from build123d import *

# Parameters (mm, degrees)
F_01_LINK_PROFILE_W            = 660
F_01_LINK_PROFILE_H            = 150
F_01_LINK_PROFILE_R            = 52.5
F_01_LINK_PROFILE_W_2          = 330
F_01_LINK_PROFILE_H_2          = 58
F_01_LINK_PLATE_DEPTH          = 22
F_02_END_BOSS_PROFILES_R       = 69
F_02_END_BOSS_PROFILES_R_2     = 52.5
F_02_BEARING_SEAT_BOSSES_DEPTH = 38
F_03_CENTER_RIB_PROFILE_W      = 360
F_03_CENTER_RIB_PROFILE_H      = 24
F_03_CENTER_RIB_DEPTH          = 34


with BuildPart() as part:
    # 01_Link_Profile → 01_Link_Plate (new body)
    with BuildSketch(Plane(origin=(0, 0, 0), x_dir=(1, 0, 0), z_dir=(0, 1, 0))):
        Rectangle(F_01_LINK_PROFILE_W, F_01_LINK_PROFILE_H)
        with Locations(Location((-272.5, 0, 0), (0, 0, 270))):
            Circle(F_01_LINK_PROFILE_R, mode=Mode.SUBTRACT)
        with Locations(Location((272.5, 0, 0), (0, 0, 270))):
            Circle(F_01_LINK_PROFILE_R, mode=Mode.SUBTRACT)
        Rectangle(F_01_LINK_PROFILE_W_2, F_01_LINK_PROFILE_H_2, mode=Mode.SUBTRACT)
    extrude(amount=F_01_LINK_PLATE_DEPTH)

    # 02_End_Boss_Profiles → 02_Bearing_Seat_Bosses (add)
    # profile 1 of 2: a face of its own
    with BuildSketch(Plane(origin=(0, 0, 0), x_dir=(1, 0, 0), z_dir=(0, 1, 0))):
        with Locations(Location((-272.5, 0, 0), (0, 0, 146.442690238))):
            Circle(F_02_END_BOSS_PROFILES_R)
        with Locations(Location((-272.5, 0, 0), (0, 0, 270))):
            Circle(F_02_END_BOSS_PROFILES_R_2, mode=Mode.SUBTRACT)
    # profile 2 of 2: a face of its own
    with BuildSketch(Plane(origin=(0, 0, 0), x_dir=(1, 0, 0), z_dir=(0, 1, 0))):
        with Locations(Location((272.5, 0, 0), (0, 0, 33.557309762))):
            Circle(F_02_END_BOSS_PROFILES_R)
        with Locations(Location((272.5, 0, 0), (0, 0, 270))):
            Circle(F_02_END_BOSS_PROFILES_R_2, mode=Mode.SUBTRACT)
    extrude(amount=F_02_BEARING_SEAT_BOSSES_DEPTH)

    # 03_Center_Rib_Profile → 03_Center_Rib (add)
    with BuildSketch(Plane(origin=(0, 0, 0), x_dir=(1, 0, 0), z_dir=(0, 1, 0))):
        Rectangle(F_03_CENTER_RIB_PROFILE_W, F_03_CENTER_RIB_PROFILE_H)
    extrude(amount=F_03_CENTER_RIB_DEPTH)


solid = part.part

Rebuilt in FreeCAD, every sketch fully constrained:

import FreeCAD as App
import Part
import Sketcher
from FreeCAD import Vector


def add_polygon(sketch, points):
    """Adds a closed chain of lines whose ends are joined by coincident constraints."""
    first, n = sketch.GeometryCount, len(points)
    for a, b in zip(points, points[1:] + points[:1]):
        sketch.addGeometry(Part.LineSegment(App.Vector(*a, 0), App.Vector(*b, 0)), False)
    for i in range(n):
        sketch.addConstraint(Sketcher.Constraint("Coincident", first + i, 2, first + (i + 1) % n, 1))

doc = App.newDocument("Part")
params = doc.addObject("Spreadsheet::Sheet", "Params")
for row, (alias, value) in enumerate([
    ("sketch1_diameter", "105 mm"),
    ("sketch1_width", "660 mm"),
    ("sketch1_width2", "330 mm"),
    ("sketch1_height", "150 mm"),
    ("sketch1_height2", "58 mm"),
    ("pad1_length", "22 mm"),
    ("sketch2_diameter", "138 mm"),
    ("sketch2_diameter2", "105 mm"),
    ("pad2_length", "38 mm"),
    ("sketch3_width", "360 mm"),
    ("sketch3_height", "24 mm"),
    ("pad3_length", "34 mm"),
], start=1):
    params.set(f"A{row}", alias)
    params.set(f"B{row}", "=" + value)
    params.setAlias(f"B{row}", alias)

body = doc.addObject("PartDesign::Body", "Body")

# Sketch on XZ plane
sketch1 = body.newObject("Sketcher::SketchObject", "Sketch")
sketch1.AttachmentSupport = (doc.getObject("XZ_Plane"), [""])
sketch1.MapMode = "FlatFace"
add_polygon(sketch1, [(-330, -75), (-330, 75), (330, 75), (330, -75)])  # lines 0-3
sketch1.addGeometry(Part.Circle(Vector(-272, 0, 0), Vector(0, 0, 1), 52), False)  # 4
add_polygon(sketch1, [(165, 29), (-165, 29), (-165, -29), (165, -29)])  # lines 5-8
sketch1.addGeometry(Part.Circle(Vector(272, 0, 0), Vector(0, 0, 1), 52), False)  # 9
sketch1.addConstraint([
    Sketcher.Constraint("Vertical", 0),
    Sketcher.Constraint("Horizontal", 1),
    Sketcher.Constraint("Vertical", 2),
    Sketcher.Constraint("Horizontal", 3),
    Sketcher.Constraint("Horizontal", 5),
    Sketcher.Constraint("Vertical", 6),
    Sketcher.Constraint("Horizontal", 7),
    Sketcher.Constraint("Vertical", 8),
    Sketcher.Constraint("Equal", 4, 9),
    Sketcher.Constraint("Symmetric", 4, 3, 9, 3, -1, 1),
    Sketcher.Constraint("Symmetric", 0, 2, 2, 2, -1, 1),
    Sketcher.Constraint("Symmetric", 5, 2, 7, 2, -1, 1),
    Sketcher.Constraint("PointOnObject", 4, 3, -1),
    Sketcher.Constraint("Diameter", 4, 105.0),
    Sketcher.Constraint("DistanceX", 1, 1, 1, 2, 660.0),
    Sketcher.Constraint("DistanceX", 5, 2, 5, 1, 330.0),
    Sketcher.Constraint("DistanceY", 0, 1, 0, 2, 150.0),
    Sketcher.Constraint("DistanceY", 6, 2, 6, 1, 58.0),
    Sketcher.Constraint("DistanceX", 4, 3, 9, 3, 545.0),
])
sketch1.setExpression("Constraints[21]", "Params.sketch1_diameter")
sketch1.setExpression("Constraints[22]", "Params.sketch1_width")
sketch1.setExpression("Constraints[23]", "Params.sketch1_width2")
sketch1.setExpression("Constraints[24]", "Params.sketch1_height")
sketch1.setExpression("Constraints[25]", "Params.sketch1_height2")
pad1 = body.newObject("PartDesign::Pad", "Pad")
pad1.Profile = sketch1
pad1.setExpression("Length", "Params.pad1_length")
pad1.Reversed = True

# Sketch on XZ plane
sketch2 = body.newObject("Sketcher::SketchObject", "Sketch001")
sketch2.AttachmentSupport = (doc.getObject("XZ_Plane"), [""])
sketch2.MapMode = "FlatFace"
sketch2.addGeometry([
    Part.Circle(Vector(-272, 0, 0), Vector(0, 0, 1), 69),
    Part.Circle(Vector(-272, 0, 0), Vector(0, 0, 1), 52),
    Part.Circle(Vector(272, 0, 0), Vector(0, 0, 1), 69),
    Part.Circle(Vector(272, 0, 0), Vector(0, 0, 1), 52),
], False)
sketch2.addConstraint([
    Sketcher.Constraint("Coincident", 1, 3, 0, 3),
    Sketcher.Constraint("Coincident", 3, 3, 2, 3),
    Sketcher.Constraint("Equal", 0, 2),
    Sketcher.Constraint("Equal", 1, 3),
    Sketcher.Constraint("Symmetric", 0, 3, 2, 3, -1, 1),
    Sketcher.Constraint("PointOnObject", 0, 3, -1),
    Sketcher.Constraint("Diameter", 0, 138.0),
    Sketcher.Constraint("Diameter", 1, 105.0),
    Sketcher.Constraint("DistanceX", 0, 3, 2, 3, 545.0),
])
sketch2.setExpression("Constraints[6]", "Params.sketch2_diameter")
sketch2.setExpression("Constraints[7]", "Params.sketch2_diameter2")
pad2 = body.newObject("PartDesign::Pad", "Pad001")
pad2.Profile = sketch2
pad2.setExpression("Length", "Params.pad2_length")
pad2.Reversed = True

# Sketch on XZ plane
sketch3 = body.newObject("Sketcher::SketchObject", "Sketch002")
sketch3.AttachmentSupport = (doc.getObject("XZ_Plane"), [""])
sketch3.MapMode = "FlatFace"
add_polygon(sketch3, [(-180, -12), (-180, 12), (180, 12), (180, -12)])  # lines 0-3
sketch3.addConstraint([
    Sketcher.Constraint("Vertical", 0),
    Sketcher.Constraint("Horizontal", 1),
    Sketcher.Constraint("Vertical", 2),
    Sketcher.Constraint("Horizontal", 3),
    Sketcher.Constraint("Symmetric", 0, 2, 2, 2, -1, 1),
    Sketcher.Constraint("DistanceX", 1, 1, 1, 2, 360.0),
    Sketcher.Constraint("DistanceY", 0, 1, 0, 2, 24.0),
])
sketch3.setExpression("Constraints[9]", "Params.sketch3_width")
sketch3.setExpression("Constraints[10]", "Params.sketch3_height")
pad3 = body.newObject("PartDesign::Pad", "Pad002")
pad3.Profile = sketch3
pad3.setExpression("Length", "Params.pad3_length")
pad3.Reversed = True

doc.recompute()
